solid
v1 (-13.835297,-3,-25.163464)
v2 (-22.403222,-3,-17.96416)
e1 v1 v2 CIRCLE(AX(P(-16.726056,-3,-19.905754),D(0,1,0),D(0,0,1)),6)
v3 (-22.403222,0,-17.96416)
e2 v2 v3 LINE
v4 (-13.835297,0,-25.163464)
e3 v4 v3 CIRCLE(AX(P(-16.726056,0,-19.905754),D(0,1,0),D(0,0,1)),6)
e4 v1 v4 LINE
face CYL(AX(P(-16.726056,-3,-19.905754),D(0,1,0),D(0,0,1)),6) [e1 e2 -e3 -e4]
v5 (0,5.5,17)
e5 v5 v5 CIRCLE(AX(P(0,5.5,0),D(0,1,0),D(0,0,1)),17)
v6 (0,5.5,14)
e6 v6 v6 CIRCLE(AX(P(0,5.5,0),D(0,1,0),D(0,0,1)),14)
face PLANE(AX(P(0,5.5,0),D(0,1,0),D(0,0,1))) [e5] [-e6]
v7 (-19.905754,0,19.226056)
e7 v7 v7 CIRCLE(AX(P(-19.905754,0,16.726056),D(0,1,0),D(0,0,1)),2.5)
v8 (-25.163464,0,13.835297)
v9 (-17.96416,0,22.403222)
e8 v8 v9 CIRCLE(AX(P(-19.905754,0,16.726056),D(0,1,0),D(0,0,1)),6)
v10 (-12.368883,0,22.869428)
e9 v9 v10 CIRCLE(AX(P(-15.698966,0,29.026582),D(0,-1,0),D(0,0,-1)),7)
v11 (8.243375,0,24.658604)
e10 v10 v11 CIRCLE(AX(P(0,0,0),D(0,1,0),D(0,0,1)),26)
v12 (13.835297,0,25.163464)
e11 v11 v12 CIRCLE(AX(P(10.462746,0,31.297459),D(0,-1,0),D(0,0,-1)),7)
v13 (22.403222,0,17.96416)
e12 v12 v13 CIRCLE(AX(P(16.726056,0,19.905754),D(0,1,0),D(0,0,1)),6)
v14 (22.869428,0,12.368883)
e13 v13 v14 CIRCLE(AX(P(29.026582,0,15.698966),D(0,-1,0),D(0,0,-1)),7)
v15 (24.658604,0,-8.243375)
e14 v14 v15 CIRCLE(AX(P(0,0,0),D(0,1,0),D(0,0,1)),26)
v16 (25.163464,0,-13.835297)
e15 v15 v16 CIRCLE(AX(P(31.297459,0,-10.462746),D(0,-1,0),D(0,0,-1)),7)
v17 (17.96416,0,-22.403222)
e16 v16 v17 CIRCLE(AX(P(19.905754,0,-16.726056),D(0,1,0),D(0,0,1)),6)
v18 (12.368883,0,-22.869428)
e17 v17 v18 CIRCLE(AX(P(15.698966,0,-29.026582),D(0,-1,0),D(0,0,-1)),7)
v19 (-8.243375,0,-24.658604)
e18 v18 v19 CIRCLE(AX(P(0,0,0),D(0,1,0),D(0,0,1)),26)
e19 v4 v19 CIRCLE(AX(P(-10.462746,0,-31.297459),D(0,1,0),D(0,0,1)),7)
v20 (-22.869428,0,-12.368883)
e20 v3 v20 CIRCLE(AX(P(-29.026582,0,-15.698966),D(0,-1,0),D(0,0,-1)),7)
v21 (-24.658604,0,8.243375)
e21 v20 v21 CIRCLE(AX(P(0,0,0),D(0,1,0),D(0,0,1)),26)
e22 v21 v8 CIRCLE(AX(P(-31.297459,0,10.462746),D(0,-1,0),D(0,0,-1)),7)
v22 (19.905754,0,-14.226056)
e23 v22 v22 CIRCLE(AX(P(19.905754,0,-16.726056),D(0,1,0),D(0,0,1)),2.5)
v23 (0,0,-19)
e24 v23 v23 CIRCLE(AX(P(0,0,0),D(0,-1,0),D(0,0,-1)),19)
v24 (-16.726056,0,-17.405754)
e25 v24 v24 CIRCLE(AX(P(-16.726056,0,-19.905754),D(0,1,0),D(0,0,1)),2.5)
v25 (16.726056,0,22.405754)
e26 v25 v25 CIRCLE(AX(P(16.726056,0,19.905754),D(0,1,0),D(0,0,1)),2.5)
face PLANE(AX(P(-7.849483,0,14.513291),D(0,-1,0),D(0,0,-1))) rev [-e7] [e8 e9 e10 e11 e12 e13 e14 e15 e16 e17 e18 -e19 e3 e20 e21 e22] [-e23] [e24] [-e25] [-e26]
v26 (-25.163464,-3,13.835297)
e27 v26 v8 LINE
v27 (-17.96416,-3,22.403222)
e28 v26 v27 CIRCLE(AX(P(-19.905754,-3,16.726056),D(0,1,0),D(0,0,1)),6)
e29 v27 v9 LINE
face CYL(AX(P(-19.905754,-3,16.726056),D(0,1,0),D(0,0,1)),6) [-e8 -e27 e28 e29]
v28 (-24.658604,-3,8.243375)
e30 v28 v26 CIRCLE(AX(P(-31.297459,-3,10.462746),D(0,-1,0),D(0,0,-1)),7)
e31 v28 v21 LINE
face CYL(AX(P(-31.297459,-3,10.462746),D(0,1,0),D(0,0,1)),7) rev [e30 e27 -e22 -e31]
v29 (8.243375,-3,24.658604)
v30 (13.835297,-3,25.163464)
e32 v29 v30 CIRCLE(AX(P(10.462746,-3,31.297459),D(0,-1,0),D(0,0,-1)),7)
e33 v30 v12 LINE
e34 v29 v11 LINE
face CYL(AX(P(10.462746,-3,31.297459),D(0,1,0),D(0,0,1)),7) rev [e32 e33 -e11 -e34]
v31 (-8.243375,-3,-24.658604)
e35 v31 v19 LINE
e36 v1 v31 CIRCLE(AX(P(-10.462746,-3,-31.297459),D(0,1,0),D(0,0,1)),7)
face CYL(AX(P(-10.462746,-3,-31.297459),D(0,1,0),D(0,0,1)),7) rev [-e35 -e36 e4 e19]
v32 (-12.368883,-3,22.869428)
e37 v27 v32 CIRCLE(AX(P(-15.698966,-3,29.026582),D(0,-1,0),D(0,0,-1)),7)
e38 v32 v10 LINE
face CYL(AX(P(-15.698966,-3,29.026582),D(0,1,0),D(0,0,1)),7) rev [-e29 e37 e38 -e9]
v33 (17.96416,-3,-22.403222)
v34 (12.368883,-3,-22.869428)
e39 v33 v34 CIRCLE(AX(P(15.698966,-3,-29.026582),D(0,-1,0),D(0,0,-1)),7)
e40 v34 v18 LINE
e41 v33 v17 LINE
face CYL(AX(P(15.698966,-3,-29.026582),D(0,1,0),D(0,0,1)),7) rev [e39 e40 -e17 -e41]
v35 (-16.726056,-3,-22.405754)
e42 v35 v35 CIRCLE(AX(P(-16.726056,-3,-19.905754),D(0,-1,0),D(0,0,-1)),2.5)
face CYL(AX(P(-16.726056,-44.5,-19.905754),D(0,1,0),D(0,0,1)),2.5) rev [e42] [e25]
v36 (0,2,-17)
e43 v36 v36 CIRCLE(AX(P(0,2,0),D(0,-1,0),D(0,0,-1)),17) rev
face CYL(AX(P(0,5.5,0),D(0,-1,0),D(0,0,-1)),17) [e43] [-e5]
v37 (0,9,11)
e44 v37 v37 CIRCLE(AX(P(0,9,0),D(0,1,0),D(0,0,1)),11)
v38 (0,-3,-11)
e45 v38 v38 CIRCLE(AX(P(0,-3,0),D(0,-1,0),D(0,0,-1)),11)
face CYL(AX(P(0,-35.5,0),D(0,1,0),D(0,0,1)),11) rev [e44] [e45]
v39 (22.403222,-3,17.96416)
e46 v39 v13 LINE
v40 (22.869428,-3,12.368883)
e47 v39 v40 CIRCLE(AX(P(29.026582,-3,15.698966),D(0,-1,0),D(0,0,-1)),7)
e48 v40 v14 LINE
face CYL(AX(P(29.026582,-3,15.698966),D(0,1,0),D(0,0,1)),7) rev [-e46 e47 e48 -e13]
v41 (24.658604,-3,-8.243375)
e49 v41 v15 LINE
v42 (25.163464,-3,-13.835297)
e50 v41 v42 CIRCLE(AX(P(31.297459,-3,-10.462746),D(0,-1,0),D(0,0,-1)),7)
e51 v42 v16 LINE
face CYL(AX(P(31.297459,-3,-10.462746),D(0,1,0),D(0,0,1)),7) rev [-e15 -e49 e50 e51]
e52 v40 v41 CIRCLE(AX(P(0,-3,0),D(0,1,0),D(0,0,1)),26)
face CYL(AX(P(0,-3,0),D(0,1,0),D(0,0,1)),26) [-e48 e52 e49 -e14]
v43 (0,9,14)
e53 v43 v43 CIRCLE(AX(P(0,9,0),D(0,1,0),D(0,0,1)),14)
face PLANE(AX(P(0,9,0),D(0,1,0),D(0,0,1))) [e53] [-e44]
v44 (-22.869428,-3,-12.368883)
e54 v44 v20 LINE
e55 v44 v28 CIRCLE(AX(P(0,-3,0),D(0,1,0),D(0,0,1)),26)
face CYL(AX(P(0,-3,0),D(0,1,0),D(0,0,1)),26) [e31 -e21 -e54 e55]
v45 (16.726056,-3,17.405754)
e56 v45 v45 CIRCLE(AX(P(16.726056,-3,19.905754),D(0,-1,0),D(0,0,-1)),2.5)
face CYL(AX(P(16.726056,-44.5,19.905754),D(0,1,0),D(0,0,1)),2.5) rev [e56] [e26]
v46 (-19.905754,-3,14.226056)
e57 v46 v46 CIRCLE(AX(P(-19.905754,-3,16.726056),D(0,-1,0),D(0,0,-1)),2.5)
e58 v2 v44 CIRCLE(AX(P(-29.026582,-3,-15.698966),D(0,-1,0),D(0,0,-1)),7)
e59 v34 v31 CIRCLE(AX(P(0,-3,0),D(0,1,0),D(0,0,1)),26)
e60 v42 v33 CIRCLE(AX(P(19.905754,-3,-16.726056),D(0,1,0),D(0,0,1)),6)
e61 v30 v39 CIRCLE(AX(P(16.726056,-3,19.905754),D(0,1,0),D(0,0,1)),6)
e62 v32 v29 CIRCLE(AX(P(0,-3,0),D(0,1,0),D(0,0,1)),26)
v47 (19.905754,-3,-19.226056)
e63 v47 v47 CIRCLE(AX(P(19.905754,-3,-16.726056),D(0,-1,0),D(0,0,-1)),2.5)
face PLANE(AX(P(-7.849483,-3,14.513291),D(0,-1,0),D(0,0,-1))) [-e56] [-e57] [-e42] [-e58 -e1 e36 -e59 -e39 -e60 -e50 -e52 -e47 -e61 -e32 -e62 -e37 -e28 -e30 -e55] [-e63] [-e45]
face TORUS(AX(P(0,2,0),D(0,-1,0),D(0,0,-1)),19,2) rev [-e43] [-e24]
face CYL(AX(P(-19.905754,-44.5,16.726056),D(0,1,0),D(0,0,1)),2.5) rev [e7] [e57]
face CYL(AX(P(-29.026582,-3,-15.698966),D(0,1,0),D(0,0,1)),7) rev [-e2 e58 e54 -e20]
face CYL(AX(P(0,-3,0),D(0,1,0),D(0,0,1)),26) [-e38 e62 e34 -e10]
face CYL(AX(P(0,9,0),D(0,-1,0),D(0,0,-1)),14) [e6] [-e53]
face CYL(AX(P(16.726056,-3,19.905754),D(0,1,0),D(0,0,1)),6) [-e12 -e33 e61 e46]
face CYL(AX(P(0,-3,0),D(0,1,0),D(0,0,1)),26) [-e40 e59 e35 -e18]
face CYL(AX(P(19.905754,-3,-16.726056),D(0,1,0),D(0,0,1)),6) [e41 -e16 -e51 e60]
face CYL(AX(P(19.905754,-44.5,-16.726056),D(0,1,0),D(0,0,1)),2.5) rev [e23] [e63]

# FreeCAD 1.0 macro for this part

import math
import FreeCAD as App
import Part
import Sketcher
from FreeCAD import Vector


def edges_at(feature, points):
    """Names of the edges that pass closest to the given points."""
    edges = feature.Shape.Edges
    near = lambda p: min(range(len(edges)), key=lambda i: edges[i].distToShape(Part.Vertex(*p))[0])
    return sorted({f"Edge{near(p) + 1}" for p in points})

doc = App.newDocument("Part")
body = doc.addObject("PartDesign::Body", "Body")

# Sketch on XZ plane
sketch1 = body.newObject("Sketcher::SketchObject", "Sketch")
sketch1.AttachmentSupport = (doc.getObject("XZ_Plane"), [""])
sketch1.MapMode = "FlatFace"
sketch1.addGeometry(Part.ArcOfCircle(Part.Circle(Vector(0, 0, 0), Vector(0, 0, 1), 26), math.radians(72), math.radians(118)), False)
sketch1.addGeometry(Part.ArcOfCircle(Part.Circle(Vector(10, 31, 0), Vector(0, 0, 1), 7), math.radians(-108), math.radians(-61)), False)
sketch1.addGeometry(Part.ArcOfCircle(Part.Circle(Vector(17, 20, 0), Vector(0, 0, 1), 6), math.radians(-19), math.radians(119)), False)
sketch1.addGeometry(Part.ArcOfCircle(Part.Circle(Vector(29, 16, 0), Vector(0, 0, 1), 7), math.radians(161), math.radians(208)), False)
sketch1.addGeometry(Part.ArcOfCircle(Part.Circle(Vector(0, 0, 0), Vector(0, 0, 1), 26), math.radians(-18), math.radians(28)), False)
sketch1.addGeometry(Part.ArcOfCircle(Part.Circle(Vector(31, -10, 0), Vector(0, 0, 1), 7), math.radians(162), math.radians(209)), False)
sketch1.addGeometry(Part.ArcOfCircle(Part.Circle(Vector(20, -17, 0), Vector(0, 0, 1), 6), math.radians(-109), math.radians(29)), False)
sketch1.addGeometry(Part.ArcOfCircle(Part.Circle(Vector(16, -29, 0), Vector(0, 0, 1), 7), math.radians(71), math.radians(118)), False)
sketch1.addGeometry(Part.ArcOfCircle(Part.Circle(Vector(0, 0, 0), Vector(0, 0, 1), 26), math.radians(-108), math.radians(-62)), False)
sketch1.addGeometry(Part.ArcOfCircle(Part.Circle(Vector(-10, -31, 0), Vector(0, 0, 1), 7), math.radians(72), math.radians(119)), False)
sketch1.addGeometry(Part.ArcOfCircle(Part.Circle(Vector(-17, -20, 0), Vector(0, 0, 1), 6), math.radians(161), math.radians(299)), False)
sketch1.addGeometry(Part.ArcOfCircle(Part.Circle(Vector(-29, -16, 0), Vector(0, 0, 1), 7), math.radians(-19), math.radians(28)), False)
sketch1.addGeometry(Part.ArcOfCircle(Part.Circle(Vector(0, 0, 0), Vector(0, 0, 1), 26), math.radians(162), math.radians(208)), False)
sketch1.addGeometry(Part.ArcOfCircle(Part.Circle(Vector(-31, 10, 0), Vector(0, 0, 1), 7), math.radians(-18), math.radians(29)), False)
sketch1.addGeometry(Part.ArcOfCircle(Part.Circle(Vector(-20, 17, 0), Vector(0, 0, 1), 6), math.radians(71), math.radians(209)), False)
sketch1.addGeometry(Part.ArcOfCircle(Part.Circle(Vector(-16, 29, 0), Vector(0, 0, 1), 7), math.radians(-109), math.radians(-62)), False)
sketch1.addConstraint(Sketcher.Constraint("Tangent", 0, 1, 1, 1))
sketch1.addConstraint(Sketcher.Constraint("Tangent", 1, 2, 2, 2))
sketch1.addConstraint(Sketcher.Constraint("Tangent", 2, 1, 3, 1))
sketch1.addConstraint(Sketcher.Constraint("Tangent", 3, 2, 4, 2))
sketch1.addConstraint(Sketcher.Constraint("Tangent", 4, 1, 5, 1))
sketch1.addConstraint(Sketcher.Constraint("Tangent", 5, 2, 6, 2))
sketch1.addConstraint(Sketcher.Constraint("Tangent", 6, 1, 7, 1))
sketch1.addConstraint(Sketcher.Constraint("Tangent", 7, 2, 8, 2))
sketch1.addConstraint(Sketcher.Constraint("Tangent", 8, 1, 9, 1))
sketch1.addConstraint(Sketcher.Constraint("Tangent", 9, 2, 10, 2))
sketch1.addConstraint(Sketcher.Constraint("Tangent", 10, 1, 11, 1))
sketch1.addConstraint(Sketcher.Constraint("Tangent", 11, 2, 12, 2))
sketch1.addConstraint(Sketcher.Constraint("Tangent", 12, 1, 13, 1))
sketch1.addConstraint(Sketcher.Constraint("Tangent", 13, 2, 14, 2))
sketch1.addConstraint(Sketcher.Constraint("Tangent", 14, 1, 15, 1))
sketch1.addConstraint(Sketcher.Constraint("Tangent", 15, 2, 0, 2))
sketch1.addConstraint(Sketcher.Constraint("Coincident", 0, 3, -1, 1))
sketch1.addConstraint(Sketcher.Constraint("Coincident", 4, 3, -1, 1))
sketch1.addConstraint(Sketcher.Constraint("Coincident", 8, 3, -1, 1))
sketch1.addConstraint(Sketcher.Constraint("Coincident", 12, 3, -1, 1))
sketch1.addConstraint(Sketcher.Constraint("Equal", 1, 3))
sketch1.addConstraint(Sketcher.Constraint("Equal", 0, 4))
sketch1.addConstraint(Sketcher.Constraint("Equal", 3, 5))
sketch1.addConstraint(Sketcher.Constraint("Equal", 2, 6))
sketch1.addConstraint(Sketcher.Constraint("Equal", 5, 7))
sketch1.addConstraint(Sketcher.Constraint("Equal", 4, 8))
sketch1.addConstraint(Sketcher.Constraint("Equal", 7, 9))
sketch1.addConstraint(Sketcher.Constraint("Equal", 6, 10))
sketch1.addConstraint(Sketcher.Constraint("Equal", 9, 11))
sketch1.addConstraint(Sketcher.Constraint("Equal", 8, 12))
sketch1.addConstraint(Sketcher.Constraint("Equal", 11, 13))
sketch1.addConstraint(Sketcher.Constraint("Equal", 10, 14))
sketch1.addConstraint(Sketcher.Constraint("Equal", 13, 15))
sketch1.addConstraint(Sketcher.Constraint("Symmetric", 2, 3, 10, 3, -1, 1))
sketch1.addConstraint(Sketcher.Constraint("Symmetric", 6, 3, 14, 3, -1, 1))
sketch1.addConstraint(Sketcher.Constraint("Radius", 0, 26.0))
sketch1.addConstraint(Sketcher.Constraint("Radius", 1, 7.0))
sketch1.addConstraint(Sketcher.Constraint("Radius", 2, 6.0))
sketch1.addConstraint(Sketcher.Constraint("DistanceY", 5, 3, 2, 3, 30.3685))
sketch1.addConstraint(Sketcher.Constraint("DistanceX", 2, 3, 6, 3, 3.179698))
sketch1.addConstraint(Sketcher.Constraint("DistanceX", 9, 3, 6, 3, 30.3685))
sketch1.addConstraint(Sketcher.Constraint("DistanceY", 2, 1, 1, 3, 13.333299))
pad1 = body.newObject("PartDesign::Pad", "Pad")
pad1.Profile = sketch1
pad1.Length = 3

# Sketch on XZ plane
sketch2 = body.newObject("Sketcher::SketchObject", "Sketch001")
sketch2.AttachmentSupport = (doc.getObject("XZ_Plane"), [""])
sketch2.MapMode = "FlatFace"
sketch2.addGeometry(Part.Circle(Vector(0, 0, 0), Vector(0, 0, 1), 17), False)
sketch2.addConstraint(Sketcher.Constraint("Coincident", 0, 3, -1, 1))
sketch2.addConstraint(Sketcher.Constraint("Diameter", 0, 34.0))
pad2 = body.newObject("PartDesign::Pad", "Pad001")
pad2.Profile = sketch2
pad2.Length = 5.5
pad2.Reversed = True

# Sketch on XZ plane
sketch3 = body.newObject("Sketcher::SketchObject", "Sketch002")
sketch3.AttachmentSupport = (doc.getObject("XZ_Plane"), [""])
sketch3.MapMode = "FlatFace"
sketch3.AttachmentOffset = App.Placement(Vector(0, 0, -5.5), App.Rotation())
sketch3.addGeometry(Part.Circle(Vector(0, 0, 0), Vector(0, 0, 1), 14), False)
sketch3.addConstraint(Sketcher.Constraint("Coincident", 0, 3, -1, 1))
sketch3.addConstraint(Sketcher.Constraint("Diameter", 0, 28.0))
pad3 = body.newObject("PartDesign::Pad", "Pad002")
pad3.Profile = sketch3
pad3.Length = 3.5
pad3.Reversed = True

# Sketch on XZ plane
sketch4 = body.newObject("Sketcher::SketchObject", "Sketch003")
sketch4.AttachmentSupport = (doc.getObject("XZ_Plane"), [""])
sketch4.MapMode = "FlatFace"
sketch4.AttachmentOffset = App.Placement(Vector(0, 0, -9), App.Rotation())
sketch4.addGeometry(Part.Circle(Vector(0, 0, 0), Vector(0, 0, 1), 11), False)
sketch4.addConstraint(Sketcher.Constraint("Coincident", 0, 3, -1, 1))
sketch4.addConstraint(Sketcher.Constraint("Diameter", 0, 22.0))
pocket1 = body.newObject("PartDesign::Pocket", "Pocket")
pocket1.Profile = sketch4
pocket1.Length = 44.5
pocket1.Reversed = True

# Sketch on XZ plane
sketch5 = body.newObject("Sketcher::SketchObject", "Sketch004")
sketch5.AttachmentSupport = (doc.getObject("XZ_Plane"), [""])
sketch5.MapMode = "FlatFace"
sketch5.addGeometry(Part.Circle(Vector(-16.7, -19.9, 0), Vector(0, 0, 1), 2.5), False)
sketch5.addConstraint(Sketcher.Constraint("Diameter", 0, 5.0))
sketch5.addConstraint(Sketcher.Constraint("DistanceX", 0, 3, -1, 1, 16.726056))
sketch5.addConstraint(Sketcher.Constraint("DistanceY", 0, 3, -1, 1, 19.905754))
pocket2 = body.newObject("PartDesign::Pocket", "Pocket001")
pocket2.Profile = sketch5
pocket2.Length = 44.5
pocket2.Reversed = True

# Sketch on XZ plane
sketch6 = body.newObject("Sketcher::SketchObject", "Sketch005")
sketch6.AttachmentSupport = (doc.getObject("XZ_Plane"), [""])
sketch6.MapMode = "FlatFace"
sketch6.addGeometry(Part.Circle(Vector(16.7, 19.9, 0), Vector(0, 0, 1), 2.5), False)
sketch6.addConstraint(Sketcher.Constraint("Diameter", 0, 5.0))
sketch6.addConstraint(Sketcher.Constraint("DistanceX", -1, 1, 0, 3, 16.726056))
sketch6.addConstraint(Sketcher.Constraint("DistanceY", -1, 1, 0, 3, 19.905754))
pocket3 = body.newObject("PartDesign::Pocket", "Pocket002")
pocket3.Profile = sketch6
pocket3.Length = 44.5
pocket3.Reversed = True

# Sketch on XZ plane
sketch7 = body.newObject("Sketcher::SketchObject", "Sketch006")
sketch7.AttachmentSupport = (doc.getObject("XZ_Plane"), [""])
sketch7.MapMode = "FlatFace"
sketch7.addGeometry(Part.Circle(Vector(-19.9, 16.7, 0), Vector(0, 0, 1), 2.5), False)
sketch7.addConstraint(Sketcher.Constraint("Diameter", 0, 5.0))
sketch7.addConstraint(Sketcher.Constraint("DistanceX", 0, 3, -1, 1, 19.905754))
sketch7.addConstraint(Sketcher.Constraint("DistanceY", -1, 1, 0, 3, 16.726056))
pocket4 = body.newObject("PartDesign::Pocket", "Pocket003")
pocket4.Profile = sketch7
pocket4.Length = 44.5
pocket4.Reversed = True

# Sketch on XZ plane
sketch8 = body.newObject("Sketcher::SketchObject", "Sketch007")
sketch8.AttachmentSupport = (doc.getObject("XZ_Plane"), [""])
sketch8.MapMode = "FlatFace"
sketch8.addGeometry(Part.Circle(Vector(19.9, -16.7, 0), Vector(0, 0, 1), 2.5), False)
sketch8.addConstraint(Sketcher.Constraint("Diameter", 0, 5.0))
sketch8.addConstraint(Sketcher.Constraint("DistanceX", -1, 1, 0, 3, 19.905754))
sketch8.addConstraint(Sketcher.Constraint("DistanceY", 0, 3, -1, 1, 16.726056))
pocket5 = body.newObject("PartDesign::Pocket", "Pocket004")
pocket5.Profile = sketch8
pocket5.Length = 44.5
pocket5.Reversed = True
doc.recompute()

fillet = body.newObject("PartDesign::Fillet", "Fillet")
fillet.Base = (pocket5, edges_at(pocket5, [(0, 0, -17)]))
fillet.Radius = 2

doc.recompute()
